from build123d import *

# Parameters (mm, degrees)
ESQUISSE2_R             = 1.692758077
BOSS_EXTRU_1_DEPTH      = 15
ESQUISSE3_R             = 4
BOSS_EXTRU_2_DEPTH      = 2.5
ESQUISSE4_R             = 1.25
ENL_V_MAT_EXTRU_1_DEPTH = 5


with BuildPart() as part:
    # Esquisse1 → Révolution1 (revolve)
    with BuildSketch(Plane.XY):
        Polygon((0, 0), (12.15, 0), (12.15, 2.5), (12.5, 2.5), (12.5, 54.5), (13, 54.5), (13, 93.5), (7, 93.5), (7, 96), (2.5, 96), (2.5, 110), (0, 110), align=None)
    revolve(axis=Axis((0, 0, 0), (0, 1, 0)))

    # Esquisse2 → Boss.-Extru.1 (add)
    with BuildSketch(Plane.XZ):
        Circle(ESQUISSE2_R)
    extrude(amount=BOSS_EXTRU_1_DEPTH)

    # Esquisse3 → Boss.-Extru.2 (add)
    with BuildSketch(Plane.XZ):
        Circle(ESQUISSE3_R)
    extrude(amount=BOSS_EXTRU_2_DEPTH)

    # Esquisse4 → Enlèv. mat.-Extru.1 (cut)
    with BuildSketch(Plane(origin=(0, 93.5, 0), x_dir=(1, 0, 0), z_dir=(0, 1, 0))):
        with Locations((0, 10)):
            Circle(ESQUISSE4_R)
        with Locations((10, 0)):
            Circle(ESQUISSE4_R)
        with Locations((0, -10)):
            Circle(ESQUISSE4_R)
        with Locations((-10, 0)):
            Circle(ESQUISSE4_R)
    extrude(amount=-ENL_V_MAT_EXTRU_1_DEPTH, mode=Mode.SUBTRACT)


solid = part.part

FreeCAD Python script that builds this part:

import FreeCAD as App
import Part
import Sketcher
from FreeCAD import Vector
Q = App.Units.Quantity

doc = App.newDocument("Part")
body = doc.addObject("PartDesign::Body", "Body")

# Sketch on XY plane
sketch1 = doc.addObject("Sketcher::SketchObject", "Sketch")
body.addObject(sketch1)
sketch1.AttachmentSupport = (doc.XY_Plane, [""])
sketch1.MapMode = "FlatFace"
sketch1.addGeometry(Part.LineSegment(Vector(0, 0, 0), Vector(12.15, 0, 0)), False)
sketch1.addGeometry(Part.LineSegment(Vector(12.15, 0, 0), Vector(12.15, 2.5, 0)), False)
sketch1.addGeometry(Part.LineSegment(Vector(12.15, 2.5, 0), Vector(12.5, 2.5, 0)), False)
sketch1.addGeometry(Part.LineSegment(Vector(12.5, 2.5, 0), Vector(12.5, 54.5, 0)), False)
sketch1.addGeometry(Part.LineSegment(Vector(12.5, 54.5, 0), Vector(13, 54.5, 0)), False)
sketch1.addGeometry(Part.LineSegment(Vector(13, 54.5, 0), Vector(13, 93.5, 0)), False)
sketch1.addGeometry(Part.LineSegment(Vector(13, 93.5, 0), Vector(7, 93.5, 0)), False)
sketch1.addGeometry(Part.LineSegment(Vector(7, 93.5, 0), Vector(7, 96, 0)), False)
sketch1.addGeometry(Part.LineSegment(Vector(7, 96, 0), Vector(2.5, 96, 0)), False)
sketch1.addGeometry(Part.LineSegment(Vector(2.5, 96, 0), Vector(2.5, 110, 0)), False)
sketch1.addGeometry(Part.LineSegment(Vector(2.5, 110, 0), Vector(0, 110, 0)), False)
sketch1.addGeometry(Part.LineSegment(Vector(0, 110, 0), Vector(0, 0, 0)), False)
sketch1.addConstraint(Sketcher.Constraint("Coincident", 0, 2, 1, 1))
sketch1.addConstraint(Sketcher.Constraint("Coincident", 1, 2, 2, 1))
sketch1.addConstraint(Sketcher.Constraint("Coincident", 2, 2, 3, 1))
sketch1.addConstraint(Sketcher.Constraint("Coincident", 3, 2, 4, 1))
sketch1.addConstraint(Sketcher.Constraint("Coincident", 4, 2, 5, 1))
sketch1.addConstraint(Sketcher.Constraint("Coincident", 5, 2, 6, 1))
sketch1.addConstraint(Sketcher.Constraint("Coincident", 6, 2, 7, 1))
sketch1.addConstraint(Sketcher.Constraint("Coincident", 7, 2, 8, 1))
sketch1.addConstraint(Sketcher.Constraint("Coincident", 8, 2, 9, 1))
sketch1.addConstraint(Sketcher.Constraint("Coincident", 9, 2, 10, 1))
sketch1.addConstraint(Sketcher.Constraint("Coincident", 10, 2, 11, 1))
sketch1.addConstraint(Sketcher.Constraint("Coincident", 11, 2, 0, 1))
sketch1.addConstraint(Sketcher.Constraint("Horizontal", 0))
sketch1.addConstraint(Sketcher.Constraint("Vertical", 1))
sketch1.addConstraint(Sketcher.Constraint("Horizontal", 2))
sketch1.addConstraint(Sketcher.Constraint("Vertical", 3))
sketch1.addConstraint(Sketcher.Constraint("Horizontal", 4))
sketch1.addConstraint(Sketcher.Constraint("Vertical", 5))
sketch1.addConstraint(Sketcher.Constraint("Horizontal", 6))
sketch1.addConstraint(Sketcher.Constraint("Vertical", 7))
sketch1.addConstraint(Sketcher.Constraint("Horizontal", 8))
sketch1.addConstraint(Sketcher.Constraint("Vertical", 9))
sketch1.addConstraint(Sketcher.Constraint("Horizontal", 10))
sketch1.addConstraint(Sketcher.Constraint("Vertical", 11))
sketch1.addConstraint(Sketcher.Constraint("Coincident", 11, 2, -1, 1))
sketch1.addConstraint(Sketcher.Constraint("Equal", 10, 1))
sketch1.addConstraint(Sketcher.Constraint("Equal", 1, 7))
sketch1.addConstraint(Sketcher.Constraint("DistanceX", 6, 2, 6, 1, Q("6 mm")))
sketch1.addConstraint(Sketcher.Constraint("DistanceY", 3, 1, 3, 2, Q("52 mm")))
sketch1.addConstraint(Sketcher.Constraint("DistanceY", 5, 1, 5, 2, Q("39 mm")))
sketch1.addConstraint(Sketcher.Constraint("DistanceY", 9, 1, 9, 2, Q("14 mm")))
sketch1.addConstraint(Sketcher.Constraint("DistanceY", 11, 2, 11, 1, Q("110 mm")))
sketch1.addConstraint(Sketcher.Constraint("DistanceX", 4, 1, 4, 2, Q("0.5 mm")))
sketch1.addConstraint(Sketcher.Constraint("DistanceX", 8, 2, 8, 1, Q("4.5 mm")))
sketch1.addConstraint(Sketcher.Constraint("DistanceX", 0, 1, 0, 2, Q("12.15 mm")))
revolution = doc.addObject("PartDesign::Revolution", "Revolution")
body.addObject(revolution)
revolution.Profile = sketch1
revolution.ReferenceAxis = (sketch1, ["V_Axis"])
revolution.Angle = 360

# Sketch on XZ plane
sketch2 = doc.addObject("Sketcher::SketchObject", "Sketch001")
body.addObject(sketch2)
sketch2.AttachmentSupport = (doc.XZ_Plane, [""])
sketch2.MapMode = "FlatFace"
sketch2.addGeometry(Part.Circle(Vector(0, 0, 0), Vector(0, 0, 1), 1.7), False)
sketch2.addConstraint(Sketcher.Constraint("Coincident", 0, 3, -1, 1))
sketch2.addConstraint(Sketcher.Constraint("Diameter", 0, Q("3.385516 mm")))
pad1 = doc.addObject("PartDesign::Pad", "Pad")
body.addObject(pad1)
pad1.Profile = sketch2
pad1.Length = 15

# Sketch on XZ plane
sketch3 = doc.addObject("Sketcher::SketchObject", "Sketch002")
body.addObject(sketch3)
sketch3.AttachmentSupport = (doc.XZ_Plane, [""])
sketch3.MapMode = "FlatFace"
sketch3.addGeometry(Part.Circle(Vector(0, 0, 0), Vector(0, 0, 1), 4), False)
sketch3.addConstraint(Sketcher.Constraint("Coincident", 0, 3, -1, 1))
sketch3.addConstraint(Sketcher.Constraint("Diameter", 0, Q("8 mm")))
pad2 = doc.addObject("PartDesign::Pad", "Pad001")
body.addObject(pad2)
pad2.Profile = sketch3
pad2.Length = 2.5

# Sketch on XZ plane
sketch4 = doc.addObject("Sketcher::SketchObject", "Sketch003")
body.addObject(sketch4)
sketch4.AttachmentSupport = (doc.XZ_Plane, [""])
sketch4.MapMode = "FlatFace"
sketch4.AttachmentOffset = App.Placement(Vector(0, 0, -93.5), App.Rotation())
sketch4.addGeometry(Part.Circle(Vector(0, -10, 0), Vector(0, 0, 1), 1.2), False)
sketch4.addGeometry(Part.Circle(Vector(10, 0, 0), Vector(0, 0, 1), 1.2), False)
sketch4.addGeometry(Part.Circle(Vector(0, 10, 0), Vector(0, 0, 1), 1.2), False)
sketch4.addGeometry(Part.Circle(Vector(-10, 0, 0), Vector(0, 0, 1), 1.2), False)
sketch4.addConstraint(Sketcher.Constraint("Equal", 0, 1))
sketch4.addConstraint(Sketcher.Constraint("Equal", 1, 2))
sketch4.addConstraint(Sketcher.Constraint("Equal", 2, 3))
sketch4.addConstraint(Sketcher.Constraint("Symmetric", 0, 3, 2, 3, -1, 1))
sketch4.addConstraint(Sketcher.Constraint("Symmetric", 1, 3, 3, 3, -1, 1))
sketch4.addConstraint(Sketcher.Constraint("PointOnObject", 0, 3, -2))
sketch4.addConstraint(Sketcher.Constraint("PointOnObject", 1, 3, -1))
sketch4.addConstraint(Sketcher.Constraint("Diameter", 0, Q("2.5 mm")))
sketch4.addConstraint(Sketcher.Constraint("DistanceY", 0, 3, -1, 1, Q("10 mm")))
sketch4.addConstraint(Sketcher.Constraint("DistanceX", -1, 1, 1, 3, Q("10 mm")))
pocket1 = doc.addObject("PartDesign::Pocket", "Pocket")
body.addObject(pocket1)
pocket1.Profile = sketch4
pocket1.Length = 5
pocket1.Reversed = True

doc.recompute()
